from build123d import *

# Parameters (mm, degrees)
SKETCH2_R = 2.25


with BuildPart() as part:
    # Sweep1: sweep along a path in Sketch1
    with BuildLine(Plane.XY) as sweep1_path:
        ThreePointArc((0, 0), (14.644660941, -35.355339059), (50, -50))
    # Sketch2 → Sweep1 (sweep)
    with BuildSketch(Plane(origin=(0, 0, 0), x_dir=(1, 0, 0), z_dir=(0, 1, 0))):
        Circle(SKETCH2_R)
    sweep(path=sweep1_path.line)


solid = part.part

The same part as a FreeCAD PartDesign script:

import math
import FreeCAD as App
import Part
import Sketcher
from FreeCAD import Vector
Q = App.Units.Quantity

doc = App.newDocument("Part")
body = doc.addObject("PartDesign::Body", "Body")

sketch1 = doc.addObject("Sketcher::SketchObject", "Sketch")
body.addObject(sketch1)
sketch1.AttachmentSupport = (doc.XZ_Plane, [""])
sketch1.MapMode = "FlatFace"
sketch1.addGeometry(Part.Circle(Vector(0, 0, 0), Vector(0, 0, 1), 2.2), False)
sketch1.addConstraint([
    Sketcher.Constraint("Coincident", 0, 3, -1, 1),
    Sketcher.Constraint("Diameter", 0, Q("4.5 mm")),
])

sketch2 = doc.addObject("Sketcher::SketchObject", "Sketch001")
body.addObject(sketch2)
sketch2.AttachmentSupport = (doc.XY_Plane, [""])
sketch2.MapMode = "FlatFace"
sketch2.addGeometry(Part.ArcOfCircle(Part.Circle(Vector(50, 0, 0), Vector(0, 0, 1), 50), math.radians(-180), math.radians(-90)), False)
sketch2.addConstraint([
    Sketcher.Constraint("Coincident", 0, 1, -1, 1),
    Sketcher.Constraint("PointOnObject", 0, 3, -1),
    Sketcher.Constraint("Radius", 0, Q("50 mm")),
    Sketcher.Constraint("DistanceX", -1, 1, 0, 2, Q("50 mm")),
])
doc.recompute()

additivepipe = doc.addObject("PartDesign::AdditivePipe", "AdditivePipe")
body.addObject(additivepipe)
additivepipe.Profile = sketch1
additivepipe.Spine = (sketch2, ["Edge1"])

doc.recompute()
